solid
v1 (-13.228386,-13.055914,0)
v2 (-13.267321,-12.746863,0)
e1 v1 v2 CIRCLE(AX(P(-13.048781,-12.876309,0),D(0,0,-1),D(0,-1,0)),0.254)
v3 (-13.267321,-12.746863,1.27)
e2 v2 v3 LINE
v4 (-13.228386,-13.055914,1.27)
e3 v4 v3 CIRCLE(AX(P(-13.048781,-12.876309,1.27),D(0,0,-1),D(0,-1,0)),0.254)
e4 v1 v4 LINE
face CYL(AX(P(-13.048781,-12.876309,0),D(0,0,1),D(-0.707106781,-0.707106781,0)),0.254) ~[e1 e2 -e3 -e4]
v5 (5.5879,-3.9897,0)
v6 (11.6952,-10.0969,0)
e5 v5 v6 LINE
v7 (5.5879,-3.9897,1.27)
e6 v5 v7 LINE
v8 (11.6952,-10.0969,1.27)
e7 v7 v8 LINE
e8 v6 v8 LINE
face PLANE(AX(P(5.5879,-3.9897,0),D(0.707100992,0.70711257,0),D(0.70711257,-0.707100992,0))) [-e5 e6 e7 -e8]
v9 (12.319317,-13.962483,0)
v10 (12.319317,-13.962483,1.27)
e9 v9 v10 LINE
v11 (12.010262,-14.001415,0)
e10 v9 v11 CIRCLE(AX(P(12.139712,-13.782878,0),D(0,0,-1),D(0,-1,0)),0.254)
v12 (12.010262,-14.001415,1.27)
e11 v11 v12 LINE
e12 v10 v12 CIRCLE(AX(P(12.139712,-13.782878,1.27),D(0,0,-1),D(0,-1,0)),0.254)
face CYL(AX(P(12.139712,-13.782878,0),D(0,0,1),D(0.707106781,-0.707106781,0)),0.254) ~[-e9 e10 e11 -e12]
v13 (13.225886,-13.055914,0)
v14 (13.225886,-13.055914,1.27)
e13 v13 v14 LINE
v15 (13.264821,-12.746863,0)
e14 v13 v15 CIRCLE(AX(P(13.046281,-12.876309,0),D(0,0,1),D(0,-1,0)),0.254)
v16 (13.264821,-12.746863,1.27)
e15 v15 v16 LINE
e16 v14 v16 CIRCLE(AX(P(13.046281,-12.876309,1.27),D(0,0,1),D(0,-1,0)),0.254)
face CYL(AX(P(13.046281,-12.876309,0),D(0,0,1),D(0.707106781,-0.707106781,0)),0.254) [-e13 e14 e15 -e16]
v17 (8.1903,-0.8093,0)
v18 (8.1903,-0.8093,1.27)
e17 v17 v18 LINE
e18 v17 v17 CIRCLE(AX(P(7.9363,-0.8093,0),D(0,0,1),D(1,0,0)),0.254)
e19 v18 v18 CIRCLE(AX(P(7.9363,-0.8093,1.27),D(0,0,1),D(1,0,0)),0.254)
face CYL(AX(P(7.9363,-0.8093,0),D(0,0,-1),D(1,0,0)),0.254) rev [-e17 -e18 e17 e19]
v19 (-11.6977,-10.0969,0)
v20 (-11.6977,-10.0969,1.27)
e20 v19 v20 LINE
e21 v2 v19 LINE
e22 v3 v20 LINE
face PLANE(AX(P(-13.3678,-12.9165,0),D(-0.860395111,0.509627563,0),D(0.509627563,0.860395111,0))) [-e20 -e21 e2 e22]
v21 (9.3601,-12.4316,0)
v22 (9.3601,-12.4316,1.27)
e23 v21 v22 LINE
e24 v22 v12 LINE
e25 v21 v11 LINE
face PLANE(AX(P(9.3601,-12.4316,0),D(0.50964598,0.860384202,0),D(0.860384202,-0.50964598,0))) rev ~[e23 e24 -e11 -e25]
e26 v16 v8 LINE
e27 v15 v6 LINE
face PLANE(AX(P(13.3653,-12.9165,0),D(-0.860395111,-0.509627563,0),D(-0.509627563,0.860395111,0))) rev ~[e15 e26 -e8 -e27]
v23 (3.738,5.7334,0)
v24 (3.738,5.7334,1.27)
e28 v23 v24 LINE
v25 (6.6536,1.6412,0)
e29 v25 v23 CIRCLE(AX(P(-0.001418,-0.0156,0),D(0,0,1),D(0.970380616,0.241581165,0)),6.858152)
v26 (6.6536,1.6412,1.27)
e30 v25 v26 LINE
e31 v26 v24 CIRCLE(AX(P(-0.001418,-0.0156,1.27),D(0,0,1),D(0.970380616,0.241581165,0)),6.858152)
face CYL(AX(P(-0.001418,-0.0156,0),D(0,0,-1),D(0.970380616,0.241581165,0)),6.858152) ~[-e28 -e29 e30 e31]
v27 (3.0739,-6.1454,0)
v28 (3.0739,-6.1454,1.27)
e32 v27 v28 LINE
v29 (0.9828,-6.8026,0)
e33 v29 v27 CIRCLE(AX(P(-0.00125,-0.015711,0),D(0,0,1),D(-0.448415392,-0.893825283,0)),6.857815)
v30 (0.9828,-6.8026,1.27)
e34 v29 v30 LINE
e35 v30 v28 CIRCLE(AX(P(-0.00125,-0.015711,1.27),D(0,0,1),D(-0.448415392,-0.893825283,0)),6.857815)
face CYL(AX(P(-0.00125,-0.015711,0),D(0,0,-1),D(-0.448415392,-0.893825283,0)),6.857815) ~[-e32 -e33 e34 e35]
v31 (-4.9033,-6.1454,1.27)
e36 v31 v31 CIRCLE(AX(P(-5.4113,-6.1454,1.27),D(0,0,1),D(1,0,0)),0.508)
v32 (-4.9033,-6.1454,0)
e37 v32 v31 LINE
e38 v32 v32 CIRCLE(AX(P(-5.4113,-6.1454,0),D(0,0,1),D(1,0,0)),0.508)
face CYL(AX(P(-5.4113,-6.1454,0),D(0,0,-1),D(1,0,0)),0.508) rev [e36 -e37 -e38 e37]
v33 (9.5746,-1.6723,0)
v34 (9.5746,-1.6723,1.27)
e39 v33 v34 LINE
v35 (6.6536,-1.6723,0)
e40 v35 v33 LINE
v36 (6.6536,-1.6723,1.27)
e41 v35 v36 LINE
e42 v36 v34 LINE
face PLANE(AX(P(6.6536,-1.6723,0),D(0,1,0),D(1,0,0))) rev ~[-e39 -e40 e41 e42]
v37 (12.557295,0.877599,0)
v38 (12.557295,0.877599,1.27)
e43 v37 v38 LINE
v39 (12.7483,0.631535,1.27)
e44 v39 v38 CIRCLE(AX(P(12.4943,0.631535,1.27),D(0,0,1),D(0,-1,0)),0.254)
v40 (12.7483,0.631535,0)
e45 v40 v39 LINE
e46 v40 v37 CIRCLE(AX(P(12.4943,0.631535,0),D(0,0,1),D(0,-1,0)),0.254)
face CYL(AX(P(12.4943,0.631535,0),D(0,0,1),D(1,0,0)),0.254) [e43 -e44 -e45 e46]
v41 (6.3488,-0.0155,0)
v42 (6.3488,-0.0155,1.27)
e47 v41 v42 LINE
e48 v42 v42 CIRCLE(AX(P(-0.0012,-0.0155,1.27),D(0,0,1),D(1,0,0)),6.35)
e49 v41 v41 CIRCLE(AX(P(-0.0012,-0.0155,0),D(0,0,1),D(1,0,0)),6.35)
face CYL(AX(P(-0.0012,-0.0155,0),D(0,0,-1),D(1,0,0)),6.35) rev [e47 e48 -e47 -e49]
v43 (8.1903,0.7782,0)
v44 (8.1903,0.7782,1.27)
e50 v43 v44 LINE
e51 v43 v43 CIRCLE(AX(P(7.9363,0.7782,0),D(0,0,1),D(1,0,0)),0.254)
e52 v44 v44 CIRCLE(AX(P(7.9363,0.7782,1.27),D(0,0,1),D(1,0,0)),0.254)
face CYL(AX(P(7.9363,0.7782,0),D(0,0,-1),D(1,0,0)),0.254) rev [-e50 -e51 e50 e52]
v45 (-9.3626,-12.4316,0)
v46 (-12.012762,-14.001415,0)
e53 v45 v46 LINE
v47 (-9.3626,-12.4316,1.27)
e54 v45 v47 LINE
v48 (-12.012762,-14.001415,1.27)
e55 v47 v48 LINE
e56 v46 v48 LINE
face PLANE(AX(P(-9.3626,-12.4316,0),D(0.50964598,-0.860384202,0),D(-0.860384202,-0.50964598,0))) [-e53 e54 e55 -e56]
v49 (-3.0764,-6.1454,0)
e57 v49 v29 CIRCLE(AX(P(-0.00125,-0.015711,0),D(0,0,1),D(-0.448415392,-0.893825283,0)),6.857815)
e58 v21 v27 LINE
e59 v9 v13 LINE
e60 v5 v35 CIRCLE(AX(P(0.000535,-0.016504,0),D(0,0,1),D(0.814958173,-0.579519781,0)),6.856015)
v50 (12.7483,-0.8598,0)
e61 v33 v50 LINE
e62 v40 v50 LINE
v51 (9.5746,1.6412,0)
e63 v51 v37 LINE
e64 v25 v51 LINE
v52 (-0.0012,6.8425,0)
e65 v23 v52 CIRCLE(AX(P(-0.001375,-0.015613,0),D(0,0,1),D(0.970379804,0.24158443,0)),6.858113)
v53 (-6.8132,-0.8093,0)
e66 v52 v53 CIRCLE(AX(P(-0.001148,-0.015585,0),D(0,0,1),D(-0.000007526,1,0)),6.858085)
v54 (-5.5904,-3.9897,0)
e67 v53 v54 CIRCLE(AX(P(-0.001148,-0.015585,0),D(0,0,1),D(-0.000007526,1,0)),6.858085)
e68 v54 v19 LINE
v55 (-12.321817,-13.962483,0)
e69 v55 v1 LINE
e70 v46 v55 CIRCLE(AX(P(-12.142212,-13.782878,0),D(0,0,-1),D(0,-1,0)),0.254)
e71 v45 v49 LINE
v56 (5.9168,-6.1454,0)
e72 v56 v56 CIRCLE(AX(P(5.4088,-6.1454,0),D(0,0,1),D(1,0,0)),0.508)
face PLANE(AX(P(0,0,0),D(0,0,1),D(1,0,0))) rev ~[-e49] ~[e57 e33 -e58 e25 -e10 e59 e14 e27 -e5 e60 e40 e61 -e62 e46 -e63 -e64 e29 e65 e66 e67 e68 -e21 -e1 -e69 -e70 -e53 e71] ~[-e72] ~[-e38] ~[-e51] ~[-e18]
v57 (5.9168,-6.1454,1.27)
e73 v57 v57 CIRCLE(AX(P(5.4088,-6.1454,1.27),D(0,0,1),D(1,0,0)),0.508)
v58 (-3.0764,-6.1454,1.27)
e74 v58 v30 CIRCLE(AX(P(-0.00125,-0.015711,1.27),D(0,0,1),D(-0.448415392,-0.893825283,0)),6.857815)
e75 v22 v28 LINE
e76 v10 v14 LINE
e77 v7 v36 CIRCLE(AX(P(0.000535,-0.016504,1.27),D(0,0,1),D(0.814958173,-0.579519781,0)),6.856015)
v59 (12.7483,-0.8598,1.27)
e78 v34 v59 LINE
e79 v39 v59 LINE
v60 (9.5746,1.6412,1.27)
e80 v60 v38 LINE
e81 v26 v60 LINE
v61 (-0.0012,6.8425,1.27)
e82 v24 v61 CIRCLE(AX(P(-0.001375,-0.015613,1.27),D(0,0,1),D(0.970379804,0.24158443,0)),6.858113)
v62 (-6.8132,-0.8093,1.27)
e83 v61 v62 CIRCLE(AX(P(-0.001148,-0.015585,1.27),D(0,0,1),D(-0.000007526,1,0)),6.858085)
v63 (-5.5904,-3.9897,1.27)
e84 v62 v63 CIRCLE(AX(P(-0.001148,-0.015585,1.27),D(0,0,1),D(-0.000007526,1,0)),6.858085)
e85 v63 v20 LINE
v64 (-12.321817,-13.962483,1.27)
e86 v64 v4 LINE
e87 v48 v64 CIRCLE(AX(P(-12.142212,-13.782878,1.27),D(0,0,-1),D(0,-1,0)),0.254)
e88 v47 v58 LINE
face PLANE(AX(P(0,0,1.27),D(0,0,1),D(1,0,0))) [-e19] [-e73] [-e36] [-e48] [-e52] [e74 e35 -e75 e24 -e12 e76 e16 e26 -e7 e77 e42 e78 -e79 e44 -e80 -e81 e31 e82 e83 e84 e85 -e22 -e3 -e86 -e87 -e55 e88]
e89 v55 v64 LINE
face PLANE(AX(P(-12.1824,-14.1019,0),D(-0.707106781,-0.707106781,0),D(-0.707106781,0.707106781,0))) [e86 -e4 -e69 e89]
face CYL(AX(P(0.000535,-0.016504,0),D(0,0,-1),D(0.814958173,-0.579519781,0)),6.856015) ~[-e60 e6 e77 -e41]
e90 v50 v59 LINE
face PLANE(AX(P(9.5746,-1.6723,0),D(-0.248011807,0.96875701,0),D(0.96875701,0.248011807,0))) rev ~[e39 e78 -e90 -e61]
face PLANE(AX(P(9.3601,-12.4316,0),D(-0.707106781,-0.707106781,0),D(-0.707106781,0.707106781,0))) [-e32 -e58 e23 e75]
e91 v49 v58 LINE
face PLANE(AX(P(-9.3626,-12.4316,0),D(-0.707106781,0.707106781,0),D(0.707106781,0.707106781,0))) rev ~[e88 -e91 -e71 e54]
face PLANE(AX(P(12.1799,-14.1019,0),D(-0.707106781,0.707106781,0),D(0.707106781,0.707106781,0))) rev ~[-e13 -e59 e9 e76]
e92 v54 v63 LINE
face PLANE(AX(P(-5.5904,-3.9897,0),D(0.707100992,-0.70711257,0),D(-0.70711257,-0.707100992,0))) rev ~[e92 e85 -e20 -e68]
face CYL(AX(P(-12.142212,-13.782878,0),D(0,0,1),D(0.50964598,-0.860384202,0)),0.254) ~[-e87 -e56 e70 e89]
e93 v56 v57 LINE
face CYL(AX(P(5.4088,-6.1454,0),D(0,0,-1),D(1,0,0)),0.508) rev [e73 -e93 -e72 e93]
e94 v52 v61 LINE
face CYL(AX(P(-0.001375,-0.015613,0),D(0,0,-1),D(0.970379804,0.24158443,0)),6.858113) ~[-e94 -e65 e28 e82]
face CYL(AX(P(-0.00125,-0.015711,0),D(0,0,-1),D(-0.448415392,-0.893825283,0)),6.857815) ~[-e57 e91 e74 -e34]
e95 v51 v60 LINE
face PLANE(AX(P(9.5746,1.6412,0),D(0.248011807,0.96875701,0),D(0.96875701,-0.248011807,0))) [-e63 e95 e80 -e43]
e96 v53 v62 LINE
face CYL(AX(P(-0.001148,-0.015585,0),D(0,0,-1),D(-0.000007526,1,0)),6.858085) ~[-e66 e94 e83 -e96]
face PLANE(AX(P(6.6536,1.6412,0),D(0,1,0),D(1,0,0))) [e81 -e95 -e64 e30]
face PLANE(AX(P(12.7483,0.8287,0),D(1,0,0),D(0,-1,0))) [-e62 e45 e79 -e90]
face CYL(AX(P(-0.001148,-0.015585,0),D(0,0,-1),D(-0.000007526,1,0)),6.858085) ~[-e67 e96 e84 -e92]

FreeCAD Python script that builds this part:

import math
import FreeCAD as App
import Part
import Sketcher
Q = App.Units.Quantity


def edges_at(feature, points):
    """Names of the edges that pass closest to the given points."""
    edges = feature.Shape.Edges
    near = lambda p: min(range(len(edges)), key=lambda i: edges[i].distToShape(Part.Vertex(*p))[0])
    return sorted({f"Edge{near(p) + 1}" for p in points})

doc = App.newDocument("Part")
params = doc.addObject("Spreadsheet::Sheet", "Params")
for row, (alias, value) in enumerate([
    ("sketch1_diameter", "0.5 in"),
    ("sketch1_diameter2", "0.04 in"),
    ("sketch1_diameter3", "0.02 in"),
    ("sketch1_length", "0.35 in"),
    ("sketch1_width", "0.115 in"),
    ("pad1_length", "0.05 in"),
    ("fillet_radius", "0.01 in"),
    ("fillet2_radius", "0.01 in"),
    ("fillet3_radius", "0.01 in"),
    ("fillet4_radius", "0.01 in"),
    ("fillet5_radius", "0.01 in"),
], start=1):
    params.set(f"A{row}", alias)
    params.set(f"B{row}", "=" + value)
    params.setAlias(f"B{row}", alias)

body = doc.addObject("PartDesign::Body", "Body")

# Sketch on XY plane
sketch1 = body.newObject("Sketcher::SketchObject", "Sketch")
sketch1.AttachmentSupport = (doc.getObject("XY_Plane"), [""])
sketch1.MapMode = "FlatFace"
sketch1.addGeometry([
    Part.LineSegment(App.Vector(3.0739, -6.1454, 0), App.Vector(9.3601, -12.4316, 0)),  # 0
    Part.LineSegment(App.Vector(9.3601, -12.4316, 0), App.Vector(12.1799, -14.1019, 0)),  # 1
    Part.LineSegment(App.Vector(12.1799, -14.1019, 0), App.Vector(13.3653, -12.9165, 0)),  # 2
    Part.LineSegment(App.Vector(13.3653, -12.9165, 0), App.Vector(11.6952, -10.0969, 0)),  # 3
    Part.LineSegment(App.Vector(11.6952, -10.0969, 0), App.Vector(5.5879, -3.9897, 0)),  # 4
    Part.ArcOfCircle(Part.Circle(App.Vector(0.000535, -0.016504, 0), App.Vector(0, 0, 1), 6.856015), math.radians(-35.416774), math.radians(-13.975679)),  # 5
    Part.LineSegment(App.Vector(6.6536, -1.6723, 0), App.Vector(9.5746, -1.6723, 0)),  # 6
    Part.LineSegment(App.Vector(9.5746, -1.6723, 0), App.Vector(12.7483, -0.8598, 0)),  # 7
    Part.LineSegment(App.Vector(12.7483, -0.8598, 0), App.Vector(12.7483, 0.8287, 0)),  # 8
    Part.LineSegment(App.Vector(12.7483, 0.8287, 0), App.Vector(9.5746, 1.6412, 0)),  # 9
    Part.LineSegment(App.Vector(9.5746, 1.6412, 0), App.Vector(6.6536, 1.6412, 0)),  # 10
    Part.ArcOfCircle(Part.Circle(App.Vector(-0.0012, -0.0155, 0), App.Vector(0, 0, 1), 6.858095), math.radians(13.979507), math.radians(56.959216)),  # 11
    Part.ArcOfCircle(Part.Circle(App.Vector(-0.0012, -0.0155, 0), App.Vector(0, 0, 1), 6.858095), math.radians(56.959216), math.radians(90)),  # 12
    Part.ArcOfCircle(Part.Circle(App.Vector(-0.0012, -0.0155, 0), App.Vector(0, 0, 1), 6.858095), math.radians(90), math.radians(215.414725)),  # 13
    Part.LineSegment(App.Vector(-5.5904, -3.9897, 0), App.Vector(-11.6977, -10.0969, 0)),  # 14
    Part.LineSegment(App.Vector(-11.6977, -10.0969, 0), App.Vector(-13.3678, -12.9165, 0)),  # 15
    Part.LineSegment(App.Vector(-13.3678, -12.9165, 0), App.Vector(-12.1824, -14.1019, 0)),  # 16
    Part.LineSegment(App.Vector(-12.1824, -14.1019, 0), App.Vector(-9.3626, -12.4316, 0)),  # 17
    Part.LineSegment(App.Vector(-9.3626, -12.4316, 0), App.Vector(-3.0764, -6.1454, 0)),  # 18
    Part.ArcOfCircle(Part.Circle(App.Vector(-0.0012, -0.0155, 0), App.Vector(0, 0, 1), 6.857916), math.radians(-116.641645), math.radians(-63.359102)),  # 19
    Part.Circle(App.Vector(-5.4113, -6.1454, 0), App.Vector(0, 0, 1), 0.508),  # 20
    Part.Circle(App.Vector(5.4088, -6.1454, 0), App.Vector(0, 0, 1), 0.508),  # 21
    Part.Circle(App.Vector(-0.0012, -0.0155, 0), App.Vector(0, 0, 1), 6.35),  # 22
    Part.Circle(App.Vector(7.9363, -0.8093, 0), App.Vector(0, 0, 1), 0.254),  # 23
    Part.Circle(App.Vector(7.9363, 0.7782, 0), App.Vector(0, 0, 1), 0.254),  # 24
], False)
sketch1.addConstraint([
    Sketcher.Constraint("Coincident", 0, 2, 1, 1),
    Sketcher.Constraint("Coincident", 1, 2, 2, 1),
    Sketcher.Constraint("Coincident", 2, 2, 3, 1),
    Sketcher.Constraint("Coincident", 3, 2, 4, 1),
    Sketcher.Constraint("Coincident", 4, 2, 5, 1),
    Sketcher.Constraint("Coincident", 5, 2, 6, 1),
    Sketcher.Constraint("Coincident", 6, 2, 7, 1),
    Sketcher.Constraint("Coincident", 7, 2, 8, 1),
    Sketcher.Constraint("Coincident", 8, 2, 9, 1),
    Sketcher.Constraint("Coincident", 9, 2, 10, 1),
    Sketcher.Constraint("Coincident", 10, 2, 11, 1),
    Sketcher.Constraint("Tangent", 11, 2, 12, 1),
    Sketcher.Constraint("Tangent", 12, 2, 13, 1),
    Sketcher.Constraint("Coincident", 13, 2, 14, 1),
    Sketcher.Constraint("Coincident", 14, 2, 15, 1),
    Sketcher.Constraint("Coincident", 15, 2, 16, 1),
    Sketcher.Constraint("Coincident", 16, 2, 17, 1),
    Sketcher.Constraint("Coincident", 17, 2, 18, 1),
    Sketcher.Constraint("Coincident", 18, 2, 19, 1),
    Sketcher.Constraint("Coincident", 19, 2, 0, 1),
    Sketcher.Constraint("Horizontal", 6),
    Sketcher.Constraint("Vertical", 8),
    Sketcher.Constraint("Horizontal", 10),
    Sketcher.Constraint("Coincident", 13, 3, 11, 3),
    Sketcher.Constraint("Coincident", 19, 3, 11, 3),
    Sketcher.Constraint("Coincident", 22, 3, 11, 3),
    Sketcher.Constraint("Equal", 13, 19),
    Sketcher.Constraint("Equal", 20, 21),
    Sketcher.Constraint("Equal", 23, 24),
    Sketcher.Constraint("Perpendicular", 0, 2),
    Sketcher.Constraint("Perpendicular", 2, 4),
    Sketcher.Constraint("Perpendicular", 4, 14),
    Sketcher.Constraint("Perpendicular", 1, 15),
    Sketcher.Constraint("Perpendicular", 14, 16),
    Sketcher.Constraint("Perpendicular", 3, 17),
    Sketcher.Constraint("Perpendicular", 16, 18),
    Sketcher.Constraint("Horizontal", 20, 3, 21, 3),
    Sketcher.Constraint("Horizontal", 4, 2, 13, 2),
    Sketcher.Constraint("Horizontal", 3, 2, 14, 2),
    Sketcher.Constraint("Horizontal", 2, 2, 15, 2),
    Sketcher.Constraint("Horizontal", 1, 2, 16, 2),
    Sketcher.Constraint("Horizontal", 0, 2, 17, 2),
    Sketcher.Constraint("Horizontal", 21, 3, 18, 2),
    Sketcher.Constraint("Horizontal", 18, 2, 19, 2),
    Sketcher.Constraint("Vertical", 23, 3, 24, 3),
    Sketcher.Constraint("Vertical", 6, 2, 9, 2),
    Sketcher.Constraint("Vertical", 5, 2, 10, 2),
    Sketcher.Constraint("Vertical", 22, 3, 12, 2),
    Sketcher.Constraint("Equal", 7, 9),
    Sketcher.Constraint("Equal", 4, 14),
    Sketcher.Constraint("Equal", 3, 15),
    Sketcher.Constraint("Diameter", 22, Q("0.5 in")),
    Sketcher.Constraint("Diameter", 20, Q("0.04 in")),
    Sketcher.Constraint("Diameter", 23, Q("0.02 in")),
    Sketcher.Constraint("Distance", 0, Q("0.35 in")),
    Sketcher.Constraint("DistanceX", 6, 1, 6, 2, Q("0.115 in")),
    Sketcher.Constraint("Angle", 9, Q("165.64 deg")),
    Sketcher.Constraint("Radius", 11, Q("0.27 in")),
    Sketcher.Constraint("Distance", 2, Q("0.066 in")),
    Sketcher.Constraint("DistanceX", 11, 3, 23, 3, Q("0.3125 in")),
    Sketcher.Constraint("DistanceY", 8, 1, 8, 2, 1.6885),
    Sketcher.Constraint("Distance", 1, 3.2774),
    Sketcher.Constraint("Distance", 3, 3.277),
    Sketcher.Constraint("Distance", 7, 3.276),
    Sketcher.Constraint("DistanceX", -1, 1, 4, 2, Q("0.22 in")),
    Sketcher.Constraint("Angle", 1, Q("-30.6403 deg")),
    Sketcher.Constraint("Radius", 5, 6.856),
    Sketcher.Constraint("DistanceY", 5, 2, 23, 3, 0.863),
    Sketcher.Constraint("DistanceY", 24, 3, 9, 2, 0.863),
    Sketcher.Constraint("DistanceX", 20, 3, 11, 3, Q("0.213 in")),
    Sketcher.Constraint("DistanceX", 11, 3, 21, 3, Q("0.213 in")),
    Sketcher.Constraint("DistanceY", 23, 3, 11, 3, Q("0.031252 in")),
    Sketcher.Constraint("DistanceX", 23, 3, 3, 2, Q("0.148 in")),
    Sketcher.Constraint("DistanceY", 11, 3, -1, 1, Q("0.0006 in")),
    Sketcher.Constraint("DistanceY", 24, 3, 11, 2, Q("0.1951 in")),
])
sketch1.setExpression("Constraints[51]", "Params.sketch1_diameter")
sketch1.setExpression("Constraints[52]", "Params.sketch1_diameter2")
sketch1.setExpression("Constraints[53]", "Params.sketch1_diameter3")
sketch1.setExpression("Constraints[54]", "Params.sketch1_length")
sketch1.setExpression("Constraints[55]", "Params.sketch1_width")
pad1 = body.newObject("PartDesign::Pad", "Pad")
pad1.Profile = sketch1
pad1.setExpression("Length", "Params.pad1_length")
doc.recompute()

fillet = body.newObject("PartDesign::Fillet", "Fillet")
fillet.Base = (pad1, edges_at(pad1, [(-12.182, -14.102, 0.635)]))
fillet.setExpression("Radius", "Params.fillet_radius")
doc.recompute()

fillet2 = body.newObject("PartDesign::Fillet", "Fillet001")
fillet2.Base = (fillet, edges_at(fillet, [(-13.368, -12.916, 0.635)]))
fillet2.setExpression("Radius", "Params.fillet2_radius")
doc.recompute()

fillet3 = body.newObject("PartDesign::Fillet", "Fillet002")
fillet3.Base = (fillet2, edges_at(fillet2, [(13.365, -12.916, 0.635)]))
fillet3.setExpression("Radius", "Params.fillet3_radius")
doc.recompute()

fillet4 = body.newObject("PartDesign::Fillet", "Fillet003")
fillet4.Base = (fillet3, edges_at(fillet3, [(12.18, -14.102, 0.635)]))
fillet4.setExpression("Radius", "Params.fillet4_radius")
doc.recompute()

fillet5 = body.newObject("PartDesign::Fillet", "Fillet004")
fillet5.Base = (fillet4, edges_at(fillet4, [(12.748, 0.829, 0.635)]))
fillet5.setExpression("Radius", "Params.fillet5_radius")

doc.recompute()
